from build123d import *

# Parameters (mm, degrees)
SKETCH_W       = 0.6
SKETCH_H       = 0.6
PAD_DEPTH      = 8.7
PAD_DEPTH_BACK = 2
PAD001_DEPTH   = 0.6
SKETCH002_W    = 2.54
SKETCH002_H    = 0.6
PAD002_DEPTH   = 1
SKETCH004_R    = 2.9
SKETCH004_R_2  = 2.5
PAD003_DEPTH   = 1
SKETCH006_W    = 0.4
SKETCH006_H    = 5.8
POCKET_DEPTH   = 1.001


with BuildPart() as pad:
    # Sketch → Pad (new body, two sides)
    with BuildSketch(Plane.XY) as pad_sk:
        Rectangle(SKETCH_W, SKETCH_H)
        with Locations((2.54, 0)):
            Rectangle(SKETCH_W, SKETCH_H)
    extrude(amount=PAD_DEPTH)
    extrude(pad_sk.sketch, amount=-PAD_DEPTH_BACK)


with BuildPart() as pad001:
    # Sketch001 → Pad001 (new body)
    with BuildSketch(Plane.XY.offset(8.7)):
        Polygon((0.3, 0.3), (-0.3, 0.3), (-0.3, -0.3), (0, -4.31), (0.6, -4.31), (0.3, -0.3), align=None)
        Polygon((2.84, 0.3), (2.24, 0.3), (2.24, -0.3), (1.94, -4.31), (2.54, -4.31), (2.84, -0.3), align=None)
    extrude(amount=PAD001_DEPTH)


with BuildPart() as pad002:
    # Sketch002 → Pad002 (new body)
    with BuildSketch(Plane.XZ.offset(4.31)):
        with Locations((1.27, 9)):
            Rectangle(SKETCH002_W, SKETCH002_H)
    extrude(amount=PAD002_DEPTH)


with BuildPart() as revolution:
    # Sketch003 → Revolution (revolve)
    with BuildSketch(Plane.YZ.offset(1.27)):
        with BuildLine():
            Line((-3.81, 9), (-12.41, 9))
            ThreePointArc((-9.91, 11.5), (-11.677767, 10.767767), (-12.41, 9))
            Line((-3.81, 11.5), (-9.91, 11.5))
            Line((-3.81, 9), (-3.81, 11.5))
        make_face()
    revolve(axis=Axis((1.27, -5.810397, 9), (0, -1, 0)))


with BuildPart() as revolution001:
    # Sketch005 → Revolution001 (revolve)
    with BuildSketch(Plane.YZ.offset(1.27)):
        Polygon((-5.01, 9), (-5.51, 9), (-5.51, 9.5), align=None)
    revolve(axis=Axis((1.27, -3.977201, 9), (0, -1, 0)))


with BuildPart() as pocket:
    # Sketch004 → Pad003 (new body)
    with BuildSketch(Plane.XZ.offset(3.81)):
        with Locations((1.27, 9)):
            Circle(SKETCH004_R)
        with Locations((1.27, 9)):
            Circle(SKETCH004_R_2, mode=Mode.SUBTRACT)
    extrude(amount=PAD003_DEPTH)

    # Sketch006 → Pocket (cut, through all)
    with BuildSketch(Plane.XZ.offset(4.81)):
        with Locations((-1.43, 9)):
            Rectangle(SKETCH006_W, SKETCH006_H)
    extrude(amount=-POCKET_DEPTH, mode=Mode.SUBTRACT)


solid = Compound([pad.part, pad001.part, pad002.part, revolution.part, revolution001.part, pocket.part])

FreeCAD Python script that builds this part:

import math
import FreeCAD as App
import Part
import Sketcher
Q = App.Units.Quantity

doc = App.newDocument("Part")
body = doc.addObject("PartDesign::Body", "Body")
body.AllowCompound = True

sketch1 = body.newObject("Sketcher::SketchObject", "Sketch")
sketch1.AttachmentSupport = (doc.getObject("XY_Plane"), [""])
sketch1.MapMode = "FlatFace"
sketch1.addGeometry([
    Part.LineSegment(App.Vector(-0.3, 0.3, 0), App.Vector(-0.3, -0.3, 0)),
    Part.LineSegment(App.Vector(-0.3, -0.3, 0), App.Vector(0.3, -0.3, 0)),
    Part.LineSegment(App.Vector(0.3, -0.3, 0), App.Vector(0.3, 0.3, 0)),
    Part.LineSegment(App.Vector(0.3, 0.3, 0), App.Vector(-0.3, 0.3, 0)),
    Part.LineSegment(App.Vector(2.2, 0.3, 0), App.Vector(2.2, -0.3, 0)),
    Part.LineSegment(App.Vector(2.2, -0.3, 0), App.Vector(2.8, -0.3, 0)),
    Part.LineSegment(App.Vector(2.8, -0.3, 0), App.Vector(2.8, 0.3, 0)),
    Part.LineSegment(App.Vector(2.8, 0.3, 0), App.Vector(2.2, 0.3, 0)),
], False)
sketch1.addConstraint([
    Sketcher.Constraint("Coincident", 0, 2, 1, 1),
    Sketcher.Constraint("Coincident", 1, 2, 2, 1),
    Sketcher.Constraint("Coincident", 2, 2, 3, 1),
    Sketcher.Constraint("Coincident", 3, 2, 0, 1),
    Sketcher.Constraint("Coincident", 4, 2, 5, 1),
    Sketcher.Constraint("Coincident", 5, 2, 6, 1),
    Sketcher.Constraint("Coincident", 6, 2, 7, 1),
    Sketcher.Constraint("Coincident", 7, 2, 4, 1),
    Sketcher.Constraint("Vertical", 0),
    Sketcher.Constraint("Horizontal", 1),
    Sketcher.Constraint("Vertical", 2),
    Sketcher.Constraint("Horizontal", 3),
    Sketcher.Constraint("Vertical", 4),
    Sketcher.Constraint("Horizontal", 5),
    Sketcher.Constraint("Vertical", 6),
    Sketcher.Constraint("Horizontal", 7),
    Sketcher.Constraint("Symmetric", 0, 2, 2, 2, -1, 1),
    Sketcher.Constraint("Horizontal", 1, 2, 4, 2),
    Sketcher.Constraint("Horizontal", 3, 2, 6, 2),
    Sketcher.Constraint("Equal", 3, 5),
    Sketcher.Constraint("Equal", 7, 0),
    Sketcher.Constraint("DistanceX", 1, 1, 1, 2, Q("0.6 mm")),
    Sketcher.Constraint("DistanceX", -1, 1, 4, 2, Q("2.24 mm")),
])
pad1 = body.newObject("PartDesign::Pad", "Pad")
pad1.Profile = sketch1
pad1.Type = "TwoLengths"
pad1.Length = 8.7
pad1.Length2 = 2
body2 = doc.addObject("PartDesign::Body", "Body001")
body2.AllowCompound = True

sketch2 = body2.newObject("Sketcher::SketchObject", "Sketch001")
sketch2.AttachmentSupport = (doc.getObject("XY_Plane001"), [""])
sketch2.MapMode = "FlatFace"
sketch2.AttachmentOffset = App.Placement(App.Vector(0, 0, 8.7), App.Rotation())
sketch2.addGeometry([
    Part.LineSegment(App.Vector(0.3, 0.3, 0), App.Vector(-0.3, 0.3, 0)),
    Part.LineSegment(App.Vector(-0.3, 0.3, 0), App.Vector(-0.3, -0.3, 0)),
    Part.LineSegment(App.Vector(-0.3, -0.3, 0), App.Vector(0, -4.3, 0)),
    Part.LineSegment(App.Vector(0, -4.3, 0), App.Vector(0.6, -4.3, 0)),
    Part.LineSegment(App.Vector(0.6, -4.3, 0), App.Vector(0.3, -0.3, 0)),
    Part.LineSegment(App.Vector(0.3, -0.3, 0), App.Vector(0.3, 0.3, 0)),
    Part.LineSegment(App.Vector(2.8, 0.3, 0), App.Vector(2.2, 0.3, 0)),
    Part.LineSegment(App.Vector(2.2, 0.3, 0), App.Vector(2.2, -0.3, 0)),
    Part.LineSegment(App.Vector(2.2, -0.3, 0), App.Vector(1.9, -4.3, 0)),
    Part.LineSegment(App.Vector(1.9, -4.3, 0), App.Vector(2.5, -4.3, 0)),
    Part.LineSegment(App.Vector(2.5, -4.3, 0), App.Vector(2.8, -0.3, 0)),
    Part.LineSegment(App.Vector(2.8, -0.3, 0), App.Vector(2.8, 0.3, 0)),
], False)
sketch2.addConstraint([
    Sketcher.Constraint("Coincident", 0, 2, 1, 1),
    Sketcher.Constraint("Coincident", 1, 2, 2, 1),
    Sketcher.Constraint("Coincident", 2, 2, 3, 1),
    Sketcher.Constraint("Coincident", 3, 2, 4, 1),
    Sketcher.Constraint("Coincident", 4, 2, 5, 1),
    Sketcher.Constraint("Coincident", 5, 2, 0, 1),
    Sketcher.Constraint("Coincident", 6, 2, 7, 1),
    Sketcher.Constraint("Coincident", 7, 2, 8, 1),
    Sketcher.Constraint("Coincident", 8, 2, 9, 1),
    Sketcher.Constraint("Coincident", 9, 2, 10, 1),
    Sketcher.Constraint("Coincident", 10, 2, 11, 1),
    Sketcher.Constraint("Coincident", 11, 2, 6, 1),
    Sketcher.Constraint("Horizontal", 0),
    Sketcher.Constraint("Vertical", 1),
    Sketcher.Constraint("Horizontal", 3),
    Sketcher.Constraint("Vertical", 5),
    Sketcher.Constraint("Horizontal", 6),
    Sketcher.Constraint("Vertical", 7),
    Sketcher.Constraint("Horizontal", 9),
    Sketcher.Constraint("Vertical", 11),
    Sketcher.Constraint("Symmetric", 0, 2, 4, 2, -1, 1),
    Sketcher.Constraint("PointOnObject", 2, 2, -2),
    Sketcher.Constraint("Parallel", 2, 4),
    Sketcher.Constraint("Parallel", 8, 10),
    Sketcher.Constraint("Horizontal", 1, 2, 4, 2),
    Sketcher.Constraint("Horizontal", 5, 2, 6, 2),
    Sketcher.Constraint("Horizontal", 4, 2, 7, 2),
    Sketcher.Constraint("Horizontal", 3, 2, 8, 2),
    Sketcher.Constraint("Horizontal", 7, 2, 10, 2),
    Sketcher.Constraint("Equal", 3, 6),
    Sketcher.Constraint("Equal", 9, 1),
    Sketcher.Constraint("Equal", 4, 8),
    Sketcher.Constraint("DistanceX", 0, 2, 0, 1, Q("0.6 mm")),
    Sketcher.Constraint("DistanceY", 2, 2, -1, 1, Q("4.31 mm")),
    Sketcher.Constraint("DistanceX", -1, 1, 6, 2, Q("2.24 mm")),
])
pad2 = body2.newObject("PartDesign::Pad", "Pad001")
pad2.Profile = sketch2
pad2.Length = 0.6
body3 = doc.addObject("PartDesign::Body", "Body002")

sketch3 = body3.newObject("Sketcher::SketchObject", "Sketch002")
sketch3.AttachmentSupport = (doc.getObject("XZ_Plane002"), [""])
sketch3.MapMode = "FlatFace"
sketch3.AttachmentOffset = App.Placement(App.Vector(0, 0, 4.31), App.Rotation())
sketch3.addGeometry([
    Part.LineSegment(App.Vector(0, 9.3, 0), App.Vector(0, 8.7, 0)),
    Part.LineSegment(App.Vector(0, 8.7, 0), App.Vector(2.5, 8.7, 0)),
    Part.LineSegment(App.Vector(2.5, 8.7, 0), App.Vector(2.5, 9.3, 0)),
    Part.LineSegment(App.Vector(2.5, 9.3, 0), App.Vector(0, 9.3, 0)),
], False)
sketch3.addConstraint([
    Sketcher.Constraint("Coincident", 0, 2, 1, 1),
    Sketcher.Constraint("Coincident", 1, 2, 2, 1),
    Sketcher.Constraint("Coincident", 2, 2, 3, 1),
    Sketcher.Constraint("Coincident", 3, 2, 0, 1),
    Sketcher.Constraint("Vertical", 0),
    Sketcher.Constraint("Horizontal", 1),
    Sketcher.Constraint("Vertical", 2),
    Sketcher.Constraint("Horizontal", 3),
    Sketcher.Constraint("PointOnObject", 0, 2, -2),
    Sketcher.Constraint("DistanceY", 0, 2, 0, 1, Q("0.6 mm")),
    Sketcher.Constraint("DistanceX", 1, 1, 1, 2, Q("2.54 mm")),
    Sketcher.Constraint("DistanceY", -1, 1, 0, 2, Q("8.7 mm")),
])
pad3 = body3.newObject("PartDesign::Pad", "Pad002")
pad3.Profile = sketch3
pad3.Length = 1
body4 = doc.addObject("PartDesign::Body", "Body003")

sketch4 = body4.newObject("Sketcher::SketchObject", "Sketch003")
sketch4.AttachmentSupport = (doc.getObject("YZ_Plane003"), [""])
sketch4.MapMode = "FlatFace"
sketch4.AttachmentOffset = App.Placement(App.Vector(0, 0, 1.27), App.Rotation())
sketch4.addGeometry([
    Part.LineSegment(App.Vector(-12.4, 9, 0), App.Vector(-3.8, 9, 0)),
    Part.LineSegment(App.Vector(-3.8, 9, 0), App.Vector(-3.8, 11.5, 0)),
    Part.LineSegment(App.Vector(-3.8, 11.5, 0), App.Vector(-9.9, 11.5, 0)),
    Part.ArcOfCircle(Part.Circle(App.Vector(-9.9, 9, 0), App.Vector(0, 0, 1), 2.5), math.radians(90), math.radians(180)),
], False)
sketch4.addGeometry(Part.LineSegment(App.Vector(-3.8, 9, 0), App.Vector(-12.4, 9, 0)), True)
sketch4.addConstraint([
    Sketcher.Constraint("Coincident", 0, 2, 1, 1),
    Sketcher.Constraint("Coincident", 1, 2, 2, 1),
    Sketcher.Constraint("Tangent", 2, 2, 3, 1),
    Sketcher.Constraint("Coincident", 3, 2, 0, 1),
    Sketcher.Constraint("Horizontal", 0),
    Sketcher.Constraint("Vertical", 1),
    Sketcher.Constraint("Horizontal", 2),
    Sketcher.Constraint("Horizontal", 4),
    Sketcher.Constraint("Coincident", 4, 1, 0, 2),
    Sketcher.Constraint("Horizontal", 3, 3, 0, 2),
    Sketcher.Constraint("Equal", 0, 4),
    Sketcher.Constraint("Radius", 3, Q("2.5 mm")),
    Sketcher.Constraint("DistanceX", 0, 1, 0, 2, Q("8.6 mm")),
    Sketcher.Constraint("DistanceY", -1, 1, 3, 3, Q("9 mm")),
    Sketcher.Constraint("DistanceX", 3, 3, -1, 1, Q("9.91 mm")),
])
revolution = body4.newObject("PartDesign::Revolution", "Revolution")
revolution.Profile = sketch4
revolution.ReferenceAxis = (sketch4, ["Axis0"])
revolution.Angle = 360
body5 = doc.addObject("PartDesign::Body", "Body004")

sketch5 = body5.newObject("Sketcher::SketchObject", "Sketch004")
sketch5.AttachmentSupport = (doc.getObject("YZ_Plane004"), [""])
sketch5.MapMode = "FlatFace"
sketch5.AttachmentOffset = App.Placement(App.Vector(0, 0, 1.27), App.Rotation())
sketch5.addGeometry([
    Part.LineSegment(App.Vector(-5.5, 9, 0), App.Vector(-5, 9, 0)),
    Part.LineSegment(App.Vector(-5, 9, 0), App.Vector(-5.5, 9.5, 0)),
    Part.LineSegment(App.Vector(-5.5, 9.5, 0), App.Vector(-5.5, 9, 0)),
], False)
sketch5.addGeometry(Part.LineSegment(App.Vector(-5, 9, 0), App.Vector(-5.5, 9, 0)), True)
sketch5.addConstraint([
    Sketcher.Constraint("Coincident", 0, 2, 1, 1),
    Sketcher.Constraint("Coincident", 1, 2, 2, 1),
    Sketcher.Constraint("Coincident", 2, 2, 0, 1),
    Sketcher.Constraint("Horizontal", 0),
    Sketcher.Constraint("Vertical", 2),
    Sketcher.Constraint("Horizontal", 3),
    Sketcher.Constraint("Coincident", 3, 1, 0, 2),
    Sketcher.Constraint("Vertical", 1, 2, 3, 2),
    Sketcher.Constraint("Equal", 3, 2),
    Sketcher.Constraint("DistanceX", 0, 1, 0, 2, Q("0.5 mm")),
    Sketcher.Constraint("DistanceY", -1, 1, 0, 2, Q("9 mm")),
    Sketcher.Constraint("DistanceX", 0, 2, -1, 1, Q("5.01 mm")),
])
revolution2 = body5.newObject("PartDesign::Revolution", "Revolution001")
revolution2.Profile = sketch5
revolution2.ReferenceAxis = (sketch5, ["Axis0"])
revolution2.Angle = 360
body6 = doc.addObject("PartDesign::Body", "Body005")

sketch6 = body6.newObject("Sketcher::SketchObject", "Sketch005")
sketch6.AttachmentSupport = (doc.getObject("XZ_Plane005"), [""])
sketch6.MapMode = "FlatFace"
sketch6.AttachmentOffset = App.Placement(App.Vector(0, 0, 3.81), App.Rotation())
sketch6.addGeometry([
    Part.Circle(App.Vector(1.3, 9, 0), App.Vector(0, 0, 1), 2.9),
    Part.Circle(App.Vector(1.3, 9, 0), App.Vector(0, 0, 1), 2.5),
], False)
sketch6.addConstraint([
    Sketcher.Constraint("Coincident", 1, 3, 0, 3),
    Sketcher.Constraint("Diameter", 1, Q("5 mm")),
    Sketcher.Constraint("Diameter", 0, Q("5.8 mm")),
    Sketcher.Constraint("DistanceY", -1, 1, 0, 3, Q("9 mm")),
    Sketcher.Constraint("DistanceX", -1, 1, 0, 3, Q("1.27 mm")),
])
pad4 = body6.newObject("PartDesign::Pad", "Pad003")
pad4.Profile = sketch6
pad4.Length = 1

sketch7 = body6.newObject("Sketcher::SketchObject", "Sketch006")
sketch7.AttachmentSupport = (doc.getObject("XZ_Plane005"), [""])
sketch7.MapMode = "FlatFace"
sketch7.AttachmentOffset = App.Placement(App.Vector(0, 0, 4.81), App.Rotation())
sketch7.addGeometry([
    Part.LineSegment(App.Vector(-1.63, 11.9, 0), App.Vector(-1.63, 6.1, 0)),
    Part.LineSegment(App.Vector(-1.63, 6.1, 0), App.Vector(-1.23, 6.1, 0)),
    Part.LineSegment(App.Vector(-1.23, 6.1, 0), App.Vector(-1.23, 11.9, 0)),
    Part.LineSegment(App.Vector(-1.23, 11.9, 0), App.Vector(-1.63, 11.9, 0)),
], False)
sketch7.addConstraint([
    Sketcher.Constraint("Coincident", 0, 2, 1, 1),
    Sketcher.Constraint("Coincident", 1, 2, 2, 1),
    Sketcher.Constraint("Coincident", 2, 2, 3, 1),
    Sketcher.Constraint("Coincident", 3, 2, 0, 1),
    Sketcher.Constraint("Vertical", 0),
    Sketcher.Constraint("Horizontal", 1),
    Sketcher.Constraint("Vertical", 2),
    Sketcher.Constraint("Horizontal", 3),
    Sketcher.Constraint("DistanceX", 1, 1, 1, 2, Q("0.4 mm")),
    Sketcher.Constraint("DistanceY", 0, 2, 0, 1, Q("5.8 mm")),
    Sketcher.Constraint("DistanceY", -1, 1, 0, 2, Q("6.1 mm")),
    Sketcher.Constraint("DistanceX", 0, 2, -1, 1, Q("1.63 mm")),
])
pocket1 = body6.newObject("PartDesign::Pocket", "Pocket")
pocket1.Profile = sketch7
pocket1.Type = "ThroughAll"

doc.recompute()
